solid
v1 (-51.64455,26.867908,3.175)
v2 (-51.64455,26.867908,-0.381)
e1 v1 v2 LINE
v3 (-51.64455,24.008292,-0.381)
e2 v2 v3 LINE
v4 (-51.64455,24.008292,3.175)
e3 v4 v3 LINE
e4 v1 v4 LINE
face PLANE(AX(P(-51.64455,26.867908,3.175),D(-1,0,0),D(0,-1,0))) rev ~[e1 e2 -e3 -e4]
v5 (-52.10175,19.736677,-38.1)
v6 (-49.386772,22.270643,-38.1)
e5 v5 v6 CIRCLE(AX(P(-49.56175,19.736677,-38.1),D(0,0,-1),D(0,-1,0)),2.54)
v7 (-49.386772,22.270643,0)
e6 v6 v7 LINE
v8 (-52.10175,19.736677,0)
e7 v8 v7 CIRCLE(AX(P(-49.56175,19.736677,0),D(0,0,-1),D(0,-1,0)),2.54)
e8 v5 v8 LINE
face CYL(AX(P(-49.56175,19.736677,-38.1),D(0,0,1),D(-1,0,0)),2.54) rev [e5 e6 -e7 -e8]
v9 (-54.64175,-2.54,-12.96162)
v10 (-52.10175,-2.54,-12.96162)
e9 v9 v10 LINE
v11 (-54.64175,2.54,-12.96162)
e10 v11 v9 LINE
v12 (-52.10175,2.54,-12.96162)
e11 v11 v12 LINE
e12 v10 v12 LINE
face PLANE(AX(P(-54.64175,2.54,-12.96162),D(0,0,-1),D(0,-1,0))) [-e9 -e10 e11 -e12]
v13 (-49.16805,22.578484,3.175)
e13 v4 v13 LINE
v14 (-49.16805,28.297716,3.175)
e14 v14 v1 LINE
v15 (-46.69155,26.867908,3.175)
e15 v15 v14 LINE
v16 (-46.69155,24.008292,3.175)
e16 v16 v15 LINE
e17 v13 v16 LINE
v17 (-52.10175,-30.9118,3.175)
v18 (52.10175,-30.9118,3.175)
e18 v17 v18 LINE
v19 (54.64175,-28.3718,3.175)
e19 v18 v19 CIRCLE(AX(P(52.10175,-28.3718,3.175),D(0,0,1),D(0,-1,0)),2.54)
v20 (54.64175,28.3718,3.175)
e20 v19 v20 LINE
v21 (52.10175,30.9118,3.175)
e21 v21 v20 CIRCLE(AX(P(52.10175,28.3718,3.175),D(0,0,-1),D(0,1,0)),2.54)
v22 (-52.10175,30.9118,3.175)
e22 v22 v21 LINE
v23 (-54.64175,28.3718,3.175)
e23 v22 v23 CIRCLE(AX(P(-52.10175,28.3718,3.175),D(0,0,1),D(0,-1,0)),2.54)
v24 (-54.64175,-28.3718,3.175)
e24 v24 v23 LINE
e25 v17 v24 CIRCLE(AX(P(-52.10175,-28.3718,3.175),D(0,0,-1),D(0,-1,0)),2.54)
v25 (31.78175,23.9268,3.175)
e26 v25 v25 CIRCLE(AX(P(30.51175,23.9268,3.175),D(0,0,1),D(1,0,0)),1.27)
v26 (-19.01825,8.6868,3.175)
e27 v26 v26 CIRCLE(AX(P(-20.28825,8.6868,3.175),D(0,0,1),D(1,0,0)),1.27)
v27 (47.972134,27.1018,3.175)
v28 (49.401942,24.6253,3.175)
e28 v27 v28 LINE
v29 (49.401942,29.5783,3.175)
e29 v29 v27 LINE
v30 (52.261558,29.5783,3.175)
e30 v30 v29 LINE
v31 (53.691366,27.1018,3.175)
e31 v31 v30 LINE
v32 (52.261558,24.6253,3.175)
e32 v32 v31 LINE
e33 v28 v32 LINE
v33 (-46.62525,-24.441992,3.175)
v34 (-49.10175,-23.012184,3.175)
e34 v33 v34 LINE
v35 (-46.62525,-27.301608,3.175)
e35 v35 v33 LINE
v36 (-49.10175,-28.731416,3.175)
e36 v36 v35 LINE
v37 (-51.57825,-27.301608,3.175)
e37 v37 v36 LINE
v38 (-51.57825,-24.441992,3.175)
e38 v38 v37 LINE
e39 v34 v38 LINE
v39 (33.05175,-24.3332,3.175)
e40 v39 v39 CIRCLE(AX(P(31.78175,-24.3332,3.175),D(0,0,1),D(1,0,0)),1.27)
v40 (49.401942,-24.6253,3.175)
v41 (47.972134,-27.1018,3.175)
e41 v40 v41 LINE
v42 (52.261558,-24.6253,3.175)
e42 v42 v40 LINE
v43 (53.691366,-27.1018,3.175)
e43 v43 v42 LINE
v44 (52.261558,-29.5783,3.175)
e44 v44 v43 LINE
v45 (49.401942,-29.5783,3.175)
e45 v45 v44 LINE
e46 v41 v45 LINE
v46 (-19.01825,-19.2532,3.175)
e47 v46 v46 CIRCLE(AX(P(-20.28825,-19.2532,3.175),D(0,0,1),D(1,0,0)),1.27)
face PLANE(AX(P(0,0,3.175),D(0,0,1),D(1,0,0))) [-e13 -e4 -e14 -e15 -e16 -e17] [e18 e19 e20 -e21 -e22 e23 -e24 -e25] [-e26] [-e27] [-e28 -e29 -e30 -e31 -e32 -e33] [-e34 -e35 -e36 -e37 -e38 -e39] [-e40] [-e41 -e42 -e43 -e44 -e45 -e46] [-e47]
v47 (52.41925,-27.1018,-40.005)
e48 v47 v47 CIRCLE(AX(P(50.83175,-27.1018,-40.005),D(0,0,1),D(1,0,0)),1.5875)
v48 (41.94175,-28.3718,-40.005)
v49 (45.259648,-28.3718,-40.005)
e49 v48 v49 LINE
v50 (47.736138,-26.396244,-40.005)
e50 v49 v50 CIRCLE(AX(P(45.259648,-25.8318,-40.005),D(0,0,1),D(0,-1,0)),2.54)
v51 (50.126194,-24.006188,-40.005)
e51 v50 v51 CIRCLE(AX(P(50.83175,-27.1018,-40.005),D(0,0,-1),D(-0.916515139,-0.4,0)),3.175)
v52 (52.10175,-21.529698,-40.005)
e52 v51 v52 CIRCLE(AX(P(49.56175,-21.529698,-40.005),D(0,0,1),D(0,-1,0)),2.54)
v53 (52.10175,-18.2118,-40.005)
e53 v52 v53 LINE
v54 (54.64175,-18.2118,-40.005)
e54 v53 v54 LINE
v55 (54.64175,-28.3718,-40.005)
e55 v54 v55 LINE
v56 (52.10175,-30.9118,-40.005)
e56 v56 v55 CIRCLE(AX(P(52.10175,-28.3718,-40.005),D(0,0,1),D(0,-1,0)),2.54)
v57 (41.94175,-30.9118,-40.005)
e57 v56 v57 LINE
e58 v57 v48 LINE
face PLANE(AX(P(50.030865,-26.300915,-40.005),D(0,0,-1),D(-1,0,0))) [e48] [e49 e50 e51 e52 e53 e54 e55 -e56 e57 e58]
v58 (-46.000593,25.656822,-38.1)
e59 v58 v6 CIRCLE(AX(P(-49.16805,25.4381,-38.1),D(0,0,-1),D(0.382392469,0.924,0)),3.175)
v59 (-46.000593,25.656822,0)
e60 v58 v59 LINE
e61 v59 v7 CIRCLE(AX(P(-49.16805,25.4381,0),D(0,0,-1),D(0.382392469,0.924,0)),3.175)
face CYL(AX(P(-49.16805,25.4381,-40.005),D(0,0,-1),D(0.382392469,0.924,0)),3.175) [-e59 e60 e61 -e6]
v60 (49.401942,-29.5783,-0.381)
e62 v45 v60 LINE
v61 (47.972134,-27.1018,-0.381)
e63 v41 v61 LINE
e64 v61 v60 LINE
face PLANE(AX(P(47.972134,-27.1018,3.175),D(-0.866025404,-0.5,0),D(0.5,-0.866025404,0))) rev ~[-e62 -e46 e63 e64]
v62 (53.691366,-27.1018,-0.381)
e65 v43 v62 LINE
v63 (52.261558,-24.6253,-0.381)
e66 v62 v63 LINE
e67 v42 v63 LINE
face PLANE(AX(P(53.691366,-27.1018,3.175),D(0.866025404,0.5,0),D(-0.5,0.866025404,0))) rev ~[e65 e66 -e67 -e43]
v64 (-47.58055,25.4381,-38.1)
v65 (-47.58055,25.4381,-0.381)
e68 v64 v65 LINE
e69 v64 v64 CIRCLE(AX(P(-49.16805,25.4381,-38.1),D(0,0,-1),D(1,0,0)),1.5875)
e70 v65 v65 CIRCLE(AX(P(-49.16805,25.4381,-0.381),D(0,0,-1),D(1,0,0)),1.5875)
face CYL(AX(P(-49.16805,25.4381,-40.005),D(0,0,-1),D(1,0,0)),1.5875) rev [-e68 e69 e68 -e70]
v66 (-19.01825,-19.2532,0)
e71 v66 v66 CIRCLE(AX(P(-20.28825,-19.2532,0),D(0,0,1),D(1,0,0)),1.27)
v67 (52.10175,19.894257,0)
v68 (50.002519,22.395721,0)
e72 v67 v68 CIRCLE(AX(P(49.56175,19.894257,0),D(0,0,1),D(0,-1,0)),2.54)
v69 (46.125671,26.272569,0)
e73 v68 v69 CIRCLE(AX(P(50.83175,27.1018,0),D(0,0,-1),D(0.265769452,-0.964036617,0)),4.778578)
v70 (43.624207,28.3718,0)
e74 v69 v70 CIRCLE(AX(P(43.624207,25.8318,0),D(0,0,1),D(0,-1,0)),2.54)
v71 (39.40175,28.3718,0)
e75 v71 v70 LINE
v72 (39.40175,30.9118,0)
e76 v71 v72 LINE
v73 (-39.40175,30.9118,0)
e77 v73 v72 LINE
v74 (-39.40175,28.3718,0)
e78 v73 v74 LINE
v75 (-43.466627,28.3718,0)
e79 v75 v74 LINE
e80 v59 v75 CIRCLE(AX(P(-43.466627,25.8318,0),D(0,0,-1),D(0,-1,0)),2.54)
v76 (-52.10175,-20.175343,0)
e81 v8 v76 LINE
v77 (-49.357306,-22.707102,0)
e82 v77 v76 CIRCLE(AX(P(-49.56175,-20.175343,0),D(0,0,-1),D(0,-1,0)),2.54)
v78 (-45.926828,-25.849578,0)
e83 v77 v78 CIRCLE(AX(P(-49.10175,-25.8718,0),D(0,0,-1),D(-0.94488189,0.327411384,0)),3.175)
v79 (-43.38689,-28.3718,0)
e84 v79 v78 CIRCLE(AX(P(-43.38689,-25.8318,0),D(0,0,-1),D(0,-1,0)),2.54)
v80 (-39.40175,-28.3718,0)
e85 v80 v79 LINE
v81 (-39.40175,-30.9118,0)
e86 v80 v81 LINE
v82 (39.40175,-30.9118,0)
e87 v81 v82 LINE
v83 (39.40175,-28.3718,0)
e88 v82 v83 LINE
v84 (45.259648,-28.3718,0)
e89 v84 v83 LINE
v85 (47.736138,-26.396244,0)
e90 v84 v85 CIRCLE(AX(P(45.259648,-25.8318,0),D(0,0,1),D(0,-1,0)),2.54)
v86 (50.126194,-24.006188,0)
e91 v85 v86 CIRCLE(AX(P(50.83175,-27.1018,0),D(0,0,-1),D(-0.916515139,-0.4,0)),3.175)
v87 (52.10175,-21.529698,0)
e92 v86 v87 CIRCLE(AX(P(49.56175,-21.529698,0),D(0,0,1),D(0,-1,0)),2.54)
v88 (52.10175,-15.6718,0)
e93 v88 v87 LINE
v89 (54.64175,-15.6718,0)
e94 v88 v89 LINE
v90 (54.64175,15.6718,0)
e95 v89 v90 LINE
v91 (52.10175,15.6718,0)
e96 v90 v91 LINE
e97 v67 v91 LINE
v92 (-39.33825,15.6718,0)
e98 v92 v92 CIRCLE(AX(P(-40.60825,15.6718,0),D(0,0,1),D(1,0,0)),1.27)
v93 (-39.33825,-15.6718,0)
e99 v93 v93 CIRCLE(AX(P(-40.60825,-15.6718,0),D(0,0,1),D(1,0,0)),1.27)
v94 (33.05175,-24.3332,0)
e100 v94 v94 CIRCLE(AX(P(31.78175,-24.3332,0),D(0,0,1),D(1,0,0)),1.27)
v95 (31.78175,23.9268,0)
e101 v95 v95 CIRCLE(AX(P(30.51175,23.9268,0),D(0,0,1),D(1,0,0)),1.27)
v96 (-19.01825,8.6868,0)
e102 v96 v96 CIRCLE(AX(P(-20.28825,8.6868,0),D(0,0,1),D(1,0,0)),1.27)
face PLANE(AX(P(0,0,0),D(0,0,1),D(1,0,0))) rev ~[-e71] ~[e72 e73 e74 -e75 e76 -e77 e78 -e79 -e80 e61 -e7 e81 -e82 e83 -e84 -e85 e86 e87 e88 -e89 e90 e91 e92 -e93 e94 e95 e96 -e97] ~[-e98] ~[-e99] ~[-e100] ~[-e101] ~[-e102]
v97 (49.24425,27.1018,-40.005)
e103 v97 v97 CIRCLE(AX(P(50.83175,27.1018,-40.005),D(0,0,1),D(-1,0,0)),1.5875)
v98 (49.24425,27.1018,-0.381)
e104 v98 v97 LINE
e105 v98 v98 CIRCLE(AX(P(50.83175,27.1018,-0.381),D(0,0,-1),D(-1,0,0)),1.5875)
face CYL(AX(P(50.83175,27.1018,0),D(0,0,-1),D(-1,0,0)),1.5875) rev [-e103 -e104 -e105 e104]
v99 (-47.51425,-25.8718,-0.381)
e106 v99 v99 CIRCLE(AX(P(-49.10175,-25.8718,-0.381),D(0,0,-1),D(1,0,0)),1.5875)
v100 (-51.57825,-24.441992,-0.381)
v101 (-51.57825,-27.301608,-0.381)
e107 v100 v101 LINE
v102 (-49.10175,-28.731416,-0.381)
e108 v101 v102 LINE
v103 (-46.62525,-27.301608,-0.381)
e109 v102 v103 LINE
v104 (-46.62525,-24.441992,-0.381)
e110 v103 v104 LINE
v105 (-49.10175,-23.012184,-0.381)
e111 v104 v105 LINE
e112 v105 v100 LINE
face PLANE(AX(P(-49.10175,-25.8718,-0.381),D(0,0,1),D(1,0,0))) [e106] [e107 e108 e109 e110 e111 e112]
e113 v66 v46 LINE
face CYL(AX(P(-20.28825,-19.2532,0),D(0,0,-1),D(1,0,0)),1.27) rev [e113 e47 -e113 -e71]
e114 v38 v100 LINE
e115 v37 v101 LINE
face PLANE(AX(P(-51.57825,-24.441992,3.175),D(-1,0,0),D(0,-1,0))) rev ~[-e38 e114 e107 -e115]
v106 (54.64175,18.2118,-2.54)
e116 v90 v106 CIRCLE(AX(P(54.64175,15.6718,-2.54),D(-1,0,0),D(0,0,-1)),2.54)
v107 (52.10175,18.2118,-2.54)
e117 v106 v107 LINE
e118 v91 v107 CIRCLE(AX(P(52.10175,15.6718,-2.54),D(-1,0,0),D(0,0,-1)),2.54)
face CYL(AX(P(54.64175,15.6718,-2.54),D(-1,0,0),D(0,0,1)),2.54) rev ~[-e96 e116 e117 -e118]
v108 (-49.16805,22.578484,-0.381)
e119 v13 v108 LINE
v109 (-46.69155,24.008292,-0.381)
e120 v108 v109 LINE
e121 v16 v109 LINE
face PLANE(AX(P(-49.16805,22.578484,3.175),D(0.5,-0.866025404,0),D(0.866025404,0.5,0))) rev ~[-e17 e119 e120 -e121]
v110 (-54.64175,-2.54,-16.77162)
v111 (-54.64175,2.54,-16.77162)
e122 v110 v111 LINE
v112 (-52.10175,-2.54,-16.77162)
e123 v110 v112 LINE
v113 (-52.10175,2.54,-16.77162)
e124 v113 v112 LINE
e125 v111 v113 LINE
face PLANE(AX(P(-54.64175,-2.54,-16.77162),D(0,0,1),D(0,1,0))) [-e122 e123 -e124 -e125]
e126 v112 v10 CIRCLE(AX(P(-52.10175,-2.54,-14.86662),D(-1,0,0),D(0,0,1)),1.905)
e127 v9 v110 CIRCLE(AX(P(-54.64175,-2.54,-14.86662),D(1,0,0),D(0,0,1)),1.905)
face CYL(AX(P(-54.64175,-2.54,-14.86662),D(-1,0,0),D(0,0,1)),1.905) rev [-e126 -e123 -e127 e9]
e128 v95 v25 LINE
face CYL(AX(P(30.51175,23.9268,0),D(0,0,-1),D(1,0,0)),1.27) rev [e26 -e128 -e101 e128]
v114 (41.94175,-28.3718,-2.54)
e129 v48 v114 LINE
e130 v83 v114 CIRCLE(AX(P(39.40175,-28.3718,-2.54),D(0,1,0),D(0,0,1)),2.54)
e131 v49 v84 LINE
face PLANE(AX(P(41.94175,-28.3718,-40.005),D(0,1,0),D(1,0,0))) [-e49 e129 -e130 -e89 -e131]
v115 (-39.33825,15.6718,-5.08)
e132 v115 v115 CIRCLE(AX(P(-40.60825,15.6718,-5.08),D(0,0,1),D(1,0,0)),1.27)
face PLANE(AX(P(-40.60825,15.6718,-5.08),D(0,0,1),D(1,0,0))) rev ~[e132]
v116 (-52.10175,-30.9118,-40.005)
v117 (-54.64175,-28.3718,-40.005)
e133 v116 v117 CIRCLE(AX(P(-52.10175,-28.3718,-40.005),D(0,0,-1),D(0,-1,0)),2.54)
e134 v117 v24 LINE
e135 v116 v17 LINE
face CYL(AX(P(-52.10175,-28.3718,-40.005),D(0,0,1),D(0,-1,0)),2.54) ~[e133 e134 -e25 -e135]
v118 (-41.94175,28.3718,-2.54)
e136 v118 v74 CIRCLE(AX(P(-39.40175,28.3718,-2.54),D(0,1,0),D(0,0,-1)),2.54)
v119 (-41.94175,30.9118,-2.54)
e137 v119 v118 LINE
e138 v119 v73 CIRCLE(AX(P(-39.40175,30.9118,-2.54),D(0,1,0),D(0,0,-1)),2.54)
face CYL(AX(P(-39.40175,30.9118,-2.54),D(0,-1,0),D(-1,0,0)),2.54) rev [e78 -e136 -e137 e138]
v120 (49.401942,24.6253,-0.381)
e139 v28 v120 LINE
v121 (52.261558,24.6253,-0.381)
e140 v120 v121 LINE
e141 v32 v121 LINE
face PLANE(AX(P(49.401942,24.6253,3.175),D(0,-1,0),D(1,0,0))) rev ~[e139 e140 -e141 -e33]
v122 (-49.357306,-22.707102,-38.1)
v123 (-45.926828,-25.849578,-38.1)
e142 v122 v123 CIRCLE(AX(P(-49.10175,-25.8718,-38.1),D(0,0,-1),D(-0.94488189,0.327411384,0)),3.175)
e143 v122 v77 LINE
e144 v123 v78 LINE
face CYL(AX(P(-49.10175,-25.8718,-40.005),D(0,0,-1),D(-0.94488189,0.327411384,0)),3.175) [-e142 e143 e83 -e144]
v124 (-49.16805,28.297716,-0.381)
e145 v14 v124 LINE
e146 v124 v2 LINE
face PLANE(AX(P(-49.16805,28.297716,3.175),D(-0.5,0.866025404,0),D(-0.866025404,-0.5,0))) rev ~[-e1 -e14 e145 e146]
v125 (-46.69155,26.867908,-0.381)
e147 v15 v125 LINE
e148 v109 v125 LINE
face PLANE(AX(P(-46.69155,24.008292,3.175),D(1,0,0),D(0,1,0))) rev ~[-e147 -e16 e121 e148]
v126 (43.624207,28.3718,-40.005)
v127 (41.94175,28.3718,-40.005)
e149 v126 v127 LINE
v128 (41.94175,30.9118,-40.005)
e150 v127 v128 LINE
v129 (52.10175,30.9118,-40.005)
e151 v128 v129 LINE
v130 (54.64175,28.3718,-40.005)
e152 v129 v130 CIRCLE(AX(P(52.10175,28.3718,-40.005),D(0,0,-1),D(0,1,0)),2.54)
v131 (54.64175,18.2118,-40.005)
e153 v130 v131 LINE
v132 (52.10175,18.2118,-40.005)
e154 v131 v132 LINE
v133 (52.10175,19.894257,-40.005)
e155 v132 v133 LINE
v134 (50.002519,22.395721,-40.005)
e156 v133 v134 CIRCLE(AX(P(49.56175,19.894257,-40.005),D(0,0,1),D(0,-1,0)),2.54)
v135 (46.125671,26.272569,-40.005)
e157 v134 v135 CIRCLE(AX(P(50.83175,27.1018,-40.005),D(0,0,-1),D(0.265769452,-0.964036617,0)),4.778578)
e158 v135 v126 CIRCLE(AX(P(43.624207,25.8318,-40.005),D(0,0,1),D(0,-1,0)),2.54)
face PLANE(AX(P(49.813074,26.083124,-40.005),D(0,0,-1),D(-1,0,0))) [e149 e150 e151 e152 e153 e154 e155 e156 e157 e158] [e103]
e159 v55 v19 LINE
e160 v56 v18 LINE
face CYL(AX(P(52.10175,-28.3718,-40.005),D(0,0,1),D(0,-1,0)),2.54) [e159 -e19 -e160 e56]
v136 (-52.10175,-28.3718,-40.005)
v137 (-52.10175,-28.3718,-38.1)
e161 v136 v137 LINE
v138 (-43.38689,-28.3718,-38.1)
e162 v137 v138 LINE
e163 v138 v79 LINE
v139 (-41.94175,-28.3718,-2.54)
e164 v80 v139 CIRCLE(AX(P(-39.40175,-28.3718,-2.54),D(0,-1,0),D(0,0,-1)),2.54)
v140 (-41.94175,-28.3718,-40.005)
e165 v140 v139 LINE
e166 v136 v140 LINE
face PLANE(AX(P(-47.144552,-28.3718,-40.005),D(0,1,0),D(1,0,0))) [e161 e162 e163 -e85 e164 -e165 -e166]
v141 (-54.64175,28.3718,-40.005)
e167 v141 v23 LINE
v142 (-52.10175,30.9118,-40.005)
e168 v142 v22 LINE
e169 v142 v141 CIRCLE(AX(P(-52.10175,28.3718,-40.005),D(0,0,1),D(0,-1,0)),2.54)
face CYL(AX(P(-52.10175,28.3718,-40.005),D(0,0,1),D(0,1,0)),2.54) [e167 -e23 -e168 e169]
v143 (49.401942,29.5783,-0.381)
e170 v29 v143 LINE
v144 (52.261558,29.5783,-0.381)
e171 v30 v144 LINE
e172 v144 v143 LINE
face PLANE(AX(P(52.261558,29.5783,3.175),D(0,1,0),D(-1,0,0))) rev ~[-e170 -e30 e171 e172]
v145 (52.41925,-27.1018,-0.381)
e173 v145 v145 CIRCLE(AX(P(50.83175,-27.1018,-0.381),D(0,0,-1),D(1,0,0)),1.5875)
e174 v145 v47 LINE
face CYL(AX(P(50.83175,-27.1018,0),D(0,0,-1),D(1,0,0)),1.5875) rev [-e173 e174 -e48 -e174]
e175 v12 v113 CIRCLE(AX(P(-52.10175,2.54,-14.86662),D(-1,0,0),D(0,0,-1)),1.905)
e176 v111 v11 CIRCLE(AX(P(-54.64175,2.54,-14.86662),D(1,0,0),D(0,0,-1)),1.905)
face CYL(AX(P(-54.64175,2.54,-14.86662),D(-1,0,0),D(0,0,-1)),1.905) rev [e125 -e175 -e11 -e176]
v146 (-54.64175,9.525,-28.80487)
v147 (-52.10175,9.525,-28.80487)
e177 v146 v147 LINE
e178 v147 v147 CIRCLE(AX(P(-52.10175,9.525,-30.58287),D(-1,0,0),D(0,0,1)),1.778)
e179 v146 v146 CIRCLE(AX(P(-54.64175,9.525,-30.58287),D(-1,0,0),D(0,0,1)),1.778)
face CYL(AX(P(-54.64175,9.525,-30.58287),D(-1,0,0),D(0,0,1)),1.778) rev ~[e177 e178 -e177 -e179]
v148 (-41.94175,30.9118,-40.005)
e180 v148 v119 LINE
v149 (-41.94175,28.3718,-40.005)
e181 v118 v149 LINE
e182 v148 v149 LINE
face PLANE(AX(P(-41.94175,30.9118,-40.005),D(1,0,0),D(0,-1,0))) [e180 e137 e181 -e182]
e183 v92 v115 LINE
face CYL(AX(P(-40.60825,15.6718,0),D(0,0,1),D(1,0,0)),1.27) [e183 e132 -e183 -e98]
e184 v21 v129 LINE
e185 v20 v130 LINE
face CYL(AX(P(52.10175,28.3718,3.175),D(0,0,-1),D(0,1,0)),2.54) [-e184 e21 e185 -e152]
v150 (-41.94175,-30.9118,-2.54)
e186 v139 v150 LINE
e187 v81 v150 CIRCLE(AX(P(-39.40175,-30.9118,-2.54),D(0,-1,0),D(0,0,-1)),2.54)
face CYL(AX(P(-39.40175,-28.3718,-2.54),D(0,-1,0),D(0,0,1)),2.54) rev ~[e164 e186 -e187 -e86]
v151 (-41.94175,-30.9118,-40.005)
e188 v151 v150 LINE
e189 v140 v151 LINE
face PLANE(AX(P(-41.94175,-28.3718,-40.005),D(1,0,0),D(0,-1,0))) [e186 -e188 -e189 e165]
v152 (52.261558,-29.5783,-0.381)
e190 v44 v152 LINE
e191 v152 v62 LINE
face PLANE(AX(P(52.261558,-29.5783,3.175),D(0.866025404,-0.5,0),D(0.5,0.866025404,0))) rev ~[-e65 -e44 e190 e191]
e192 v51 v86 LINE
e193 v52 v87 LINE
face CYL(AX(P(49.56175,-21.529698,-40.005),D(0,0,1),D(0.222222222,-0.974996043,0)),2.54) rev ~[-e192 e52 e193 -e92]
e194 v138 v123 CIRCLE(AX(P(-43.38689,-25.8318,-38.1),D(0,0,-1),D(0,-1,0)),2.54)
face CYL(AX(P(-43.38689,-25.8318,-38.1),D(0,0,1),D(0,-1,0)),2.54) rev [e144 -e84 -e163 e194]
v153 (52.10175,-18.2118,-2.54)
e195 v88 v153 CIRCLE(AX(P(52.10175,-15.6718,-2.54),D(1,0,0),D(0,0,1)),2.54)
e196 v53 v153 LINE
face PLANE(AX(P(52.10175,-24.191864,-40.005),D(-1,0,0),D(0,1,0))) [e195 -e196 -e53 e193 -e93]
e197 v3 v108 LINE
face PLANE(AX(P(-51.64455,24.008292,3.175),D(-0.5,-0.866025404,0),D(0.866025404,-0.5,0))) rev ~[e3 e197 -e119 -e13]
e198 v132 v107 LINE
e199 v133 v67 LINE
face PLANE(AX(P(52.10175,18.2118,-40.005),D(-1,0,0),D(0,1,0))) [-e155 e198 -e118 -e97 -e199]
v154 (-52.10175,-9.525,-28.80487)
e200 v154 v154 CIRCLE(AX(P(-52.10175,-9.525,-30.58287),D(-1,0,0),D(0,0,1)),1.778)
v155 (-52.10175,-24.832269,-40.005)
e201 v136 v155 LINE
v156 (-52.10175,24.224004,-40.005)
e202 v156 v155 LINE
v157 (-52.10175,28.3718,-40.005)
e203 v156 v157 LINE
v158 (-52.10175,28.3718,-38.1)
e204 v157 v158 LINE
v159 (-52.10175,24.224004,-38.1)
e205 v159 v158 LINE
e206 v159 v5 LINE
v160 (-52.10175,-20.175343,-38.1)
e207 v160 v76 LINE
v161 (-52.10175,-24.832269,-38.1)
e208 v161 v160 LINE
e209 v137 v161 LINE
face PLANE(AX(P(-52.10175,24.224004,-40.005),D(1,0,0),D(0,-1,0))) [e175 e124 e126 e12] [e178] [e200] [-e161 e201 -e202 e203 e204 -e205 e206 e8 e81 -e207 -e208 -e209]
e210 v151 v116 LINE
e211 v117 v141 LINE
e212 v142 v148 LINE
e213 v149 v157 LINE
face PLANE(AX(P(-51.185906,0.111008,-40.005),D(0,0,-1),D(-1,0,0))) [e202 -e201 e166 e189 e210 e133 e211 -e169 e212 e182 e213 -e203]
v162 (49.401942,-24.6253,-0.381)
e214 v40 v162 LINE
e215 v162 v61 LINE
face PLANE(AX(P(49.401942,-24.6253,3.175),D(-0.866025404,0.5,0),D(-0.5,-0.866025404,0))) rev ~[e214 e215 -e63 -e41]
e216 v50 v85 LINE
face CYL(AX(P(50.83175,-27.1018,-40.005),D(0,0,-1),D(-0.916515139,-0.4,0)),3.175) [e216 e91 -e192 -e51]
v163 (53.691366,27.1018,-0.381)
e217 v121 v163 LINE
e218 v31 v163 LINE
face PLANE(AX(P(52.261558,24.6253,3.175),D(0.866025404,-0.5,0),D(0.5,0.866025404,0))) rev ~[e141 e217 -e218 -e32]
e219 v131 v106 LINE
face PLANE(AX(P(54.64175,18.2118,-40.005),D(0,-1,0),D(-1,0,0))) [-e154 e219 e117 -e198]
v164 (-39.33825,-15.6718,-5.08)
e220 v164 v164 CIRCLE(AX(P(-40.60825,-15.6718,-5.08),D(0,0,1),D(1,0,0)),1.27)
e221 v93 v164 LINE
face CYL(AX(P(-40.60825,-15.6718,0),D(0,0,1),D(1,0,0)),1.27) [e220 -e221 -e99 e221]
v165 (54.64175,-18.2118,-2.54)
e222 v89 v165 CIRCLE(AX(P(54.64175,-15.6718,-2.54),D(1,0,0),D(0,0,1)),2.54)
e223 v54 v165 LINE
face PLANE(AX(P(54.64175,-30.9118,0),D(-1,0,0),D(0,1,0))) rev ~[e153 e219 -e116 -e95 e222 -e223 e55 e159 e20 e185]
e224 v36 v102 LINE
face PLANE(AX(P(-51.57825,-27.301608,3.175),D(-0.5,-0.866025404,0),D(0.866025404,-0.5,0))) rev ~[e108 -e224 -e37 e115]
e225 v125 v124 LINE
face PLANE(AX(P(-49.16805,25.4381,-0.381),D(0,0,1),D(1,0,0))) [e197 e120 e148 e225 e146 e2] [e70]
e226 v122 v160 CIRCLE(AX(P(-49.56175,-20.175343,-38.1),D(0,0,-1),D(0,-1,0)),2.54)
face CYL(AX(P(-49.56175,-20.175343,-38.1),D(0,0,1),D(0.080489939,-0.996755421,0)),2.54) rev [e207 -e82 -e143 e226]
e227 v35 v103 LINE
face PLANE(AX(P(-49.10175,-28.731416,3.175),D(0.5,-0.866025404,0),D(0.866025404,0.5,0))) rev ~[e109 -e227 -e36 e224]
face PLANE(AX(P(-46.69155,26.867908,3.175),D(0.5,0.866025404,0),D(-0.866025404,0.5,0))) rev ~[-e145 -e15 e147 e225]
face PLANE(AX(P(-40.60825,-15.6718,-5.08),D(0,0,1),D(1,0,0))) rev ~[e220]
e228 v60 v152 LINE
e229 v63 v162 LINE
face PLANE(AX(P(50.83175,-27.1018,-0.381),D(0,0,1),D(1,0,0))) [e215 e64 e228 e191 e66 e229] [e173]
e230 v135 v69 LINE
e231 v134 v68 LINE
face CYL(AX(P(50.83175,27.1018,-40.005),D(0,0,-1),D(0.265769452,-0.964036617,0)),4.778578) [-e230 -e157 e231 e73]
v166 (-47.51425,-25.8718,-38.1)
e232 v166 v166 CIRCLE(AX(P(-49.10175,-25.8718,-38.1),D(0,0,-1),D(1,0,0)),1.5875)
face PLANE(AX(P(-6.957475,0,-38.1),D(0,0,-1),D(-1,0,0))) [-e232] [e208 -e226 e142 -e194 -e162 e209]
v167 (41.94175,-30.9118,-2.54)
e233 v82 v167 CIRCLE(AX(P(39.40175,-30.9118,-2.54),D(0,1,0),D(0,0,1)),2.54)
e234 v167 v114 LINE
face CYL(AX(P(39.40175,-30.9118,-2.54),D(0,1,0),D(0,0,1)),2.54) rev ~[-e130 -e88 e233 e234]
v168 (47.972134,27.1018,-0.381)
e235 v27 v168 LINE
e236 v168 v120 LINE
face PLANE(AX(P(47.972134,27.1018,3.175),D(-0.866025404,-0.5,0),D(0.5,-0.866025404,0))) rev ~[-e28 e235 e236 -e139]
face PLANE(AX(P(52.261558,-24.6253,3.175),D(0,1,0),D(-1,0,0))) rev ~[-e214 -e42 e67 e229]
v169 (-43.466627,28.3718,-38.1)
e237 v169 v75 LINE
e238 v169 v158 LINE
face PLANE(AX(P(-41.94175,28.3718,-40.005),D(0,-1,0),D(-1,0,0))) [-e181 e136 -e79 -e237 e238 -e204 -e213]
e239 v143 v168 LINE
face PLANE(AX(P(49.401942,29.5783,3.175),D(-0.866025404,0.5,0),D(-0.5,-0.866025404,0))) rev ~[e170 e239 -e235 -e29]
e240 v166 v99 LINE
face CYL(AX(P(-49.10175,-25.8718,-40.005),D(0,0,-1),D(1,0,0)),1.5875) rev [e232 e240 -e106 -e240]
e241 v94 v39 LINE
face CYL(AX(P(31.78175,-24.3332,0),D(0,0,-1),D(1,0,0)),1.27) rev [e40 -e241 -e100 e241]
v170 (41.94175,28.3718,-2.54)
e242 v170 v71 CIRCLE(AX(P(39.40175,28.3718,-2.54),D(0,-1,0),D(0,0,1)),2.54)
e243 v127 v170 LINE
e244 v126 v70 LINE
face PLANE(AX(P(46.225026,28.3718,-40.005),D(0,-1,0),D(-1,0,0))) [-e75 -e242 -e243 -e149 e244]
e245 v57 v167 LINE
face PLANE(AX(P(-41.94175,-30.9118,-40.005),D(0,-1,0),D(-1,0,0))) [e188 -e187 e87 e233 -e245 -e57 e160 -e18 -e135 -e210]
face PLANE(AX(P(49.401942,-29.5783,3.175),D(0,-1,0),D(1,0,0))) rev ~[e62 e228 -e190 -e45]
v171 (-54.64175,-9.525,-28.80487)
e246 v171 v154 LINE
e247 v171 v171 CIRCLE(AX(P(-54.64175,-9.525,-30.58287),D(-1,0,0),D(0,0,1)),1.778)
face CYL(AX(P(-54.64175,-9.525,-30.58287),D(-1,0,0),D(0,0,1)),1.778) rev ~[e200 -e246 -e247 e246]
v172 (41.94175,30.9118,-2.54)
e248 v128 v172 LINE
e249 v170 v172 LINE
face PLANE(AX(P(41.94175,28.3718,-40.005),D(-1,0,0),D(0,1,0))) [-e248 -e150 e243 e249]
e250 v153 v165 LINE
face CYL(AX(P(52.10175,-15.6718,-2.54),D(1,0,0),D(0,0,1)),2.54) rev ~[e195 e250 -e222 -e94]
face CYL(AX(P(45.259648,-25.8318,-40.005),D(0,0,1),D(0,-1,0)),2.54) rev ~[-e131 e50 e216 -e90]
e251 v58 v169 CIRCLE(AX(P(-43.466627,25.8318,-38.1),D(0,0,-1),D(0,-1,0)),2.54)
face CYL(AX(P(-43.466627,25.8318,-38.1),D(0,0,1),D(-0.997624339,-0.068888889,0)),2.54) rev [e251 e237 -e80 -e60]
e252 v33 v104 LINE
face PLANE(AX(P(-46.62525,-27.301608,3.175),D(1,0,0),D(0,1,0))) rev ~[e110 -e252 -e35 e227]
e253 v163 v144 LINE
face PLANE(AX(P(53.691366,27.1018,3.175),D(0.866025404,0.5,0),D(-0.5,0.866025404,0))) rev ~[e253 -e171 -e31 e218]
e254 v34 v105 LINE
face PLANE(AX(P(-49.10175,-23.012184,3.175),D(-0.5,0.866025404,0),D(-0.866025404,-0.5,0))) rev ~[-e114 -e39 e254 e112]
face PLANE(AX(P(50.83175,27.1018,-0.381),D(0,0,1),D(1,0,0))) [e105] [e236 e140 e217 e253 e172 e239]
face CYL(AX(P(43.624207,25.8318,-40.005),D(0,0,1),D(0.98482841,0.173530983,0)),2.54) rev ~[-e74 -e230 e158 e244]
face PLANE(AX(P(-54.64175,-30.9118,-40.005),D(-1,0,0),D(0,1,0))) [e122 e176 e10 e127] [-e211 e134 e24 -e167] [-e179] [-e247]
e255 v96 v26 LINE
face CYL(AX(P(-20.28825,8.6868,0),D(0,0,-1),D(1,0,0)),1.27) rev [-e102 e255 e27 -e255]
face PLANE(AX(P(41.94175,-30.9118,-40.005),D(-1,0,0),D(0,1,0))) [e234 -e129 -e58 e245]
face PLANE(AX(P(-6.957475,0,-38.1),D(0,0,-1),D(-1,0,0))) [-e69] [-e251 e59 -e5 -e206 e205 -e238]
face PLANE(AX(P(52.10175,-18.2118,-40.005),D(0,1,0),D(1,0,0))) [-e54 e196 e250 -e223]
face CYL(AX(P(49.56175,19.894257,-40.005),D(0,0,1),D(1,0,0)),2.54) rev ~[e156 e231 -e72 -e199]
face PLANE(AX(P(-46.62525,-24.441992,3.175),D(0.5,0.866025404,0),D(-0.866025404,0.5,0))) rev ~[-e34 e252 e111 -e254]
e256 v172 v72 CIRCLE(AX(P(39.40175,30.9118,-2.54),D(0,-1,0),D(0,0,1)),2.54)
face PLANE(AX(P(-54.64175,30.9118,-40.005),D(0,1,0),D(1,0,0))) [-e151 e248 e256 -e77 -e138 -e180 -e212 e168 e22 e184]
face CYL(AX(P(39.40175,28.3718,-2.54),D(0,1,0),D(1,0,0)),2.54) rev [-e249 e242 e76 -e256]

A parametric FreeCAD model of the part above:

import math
import FreeCAD as App
import Part
import Sketcher
from FreeCAD import Vector
Q = App.Units.Quantity


def edges_at(feature, points):
    """Names of the edges that pass closest to the given points."""
    edges = feature.Shape.Edges
    near = lambda p: min(range(len(edges)), key=lambda i: edges[i].distToShape(Part.Vertex(*p))[0])
    return sorted({f"Edge{near(p) + 1}" for p in points})

doc = App.newDocument("Part")
body = doc.addObject("PartDesign::Body", "Body")

# Sketch on XY plane
sketch1 = body.newObject("Sketcher::SketchObject", "Sketch")
sketch1.AttachmentSupport = (doc.getObject("XY_Plane"), [""])
sketch1.MapMode = "FlatFace"
sketch1.addGeometry([
    Part.LineSegment(Vector(-54.6, 30.9, 0), Vector(-54.6, -30.9, 0)),  # 0
    Part.LineSegment(Vector(-54.6, -30.9, 0), Vector(54.6, -30.9, 0)),  # 1
    Part.LineSegment(Vector(54.6, -30.9, 0), Vector(54.6, 30.9, 0)),  # 2
    Part.LineSegment(Vector(54.6, 30.9, 0), Vector(-54.6, 30.9, 0)),  # 3
    Part.Circle(Vector(-49.1, -25.9, 0), Vector(0, 0, 1), 1.6),  # 4
    Part.Circle(Vector(-20.3, -19.3, 0), Vector(0, 0, 1), 1.3),  # 5
    Part.Circle(Vector(31.8, -24.3, 0), Vector(0, 0, 1), 1.3),  # 6
    Part.Circle(Vector(50.8, -27.1, 0), Vector(0, 0, 1), 1.6),  # 7
    Part.Circle(Vector(-20.3, 8.7, 0), Vector(0, 0, 1), 1.3),  # 8
    Part.Circle(Vector(-49.2, 25.4, 0), Vector(0, 0, 1), 1.6),  # 9
    Part.Circle(Vector(30.5, 23.9, 0), Vector(0, 0, 1), 1.3),  # 10
    Part.Circle(Vector(50.8, 27.1, 0), Vector(0, 0, 1), 1.6),  # 11
], False)
sketch1.addConstraint([
    Sketcher.Constraint("Coincident", 0, 2, 1, 1),
    Sketcher.Constraint("Coincident", 1, 2, 2, 1),
    Sketcher.Constraint("Coincident", 2, 2, 3, 1),
    Sketcher.Constraint("Coincident", 3, 2, 0, 1),
    Sketcher.Constraint("Vertical", 0),
    Sketcher.Constraint("Horizontal", 1),
    Sketcher.Constraint("Vertical", 2),
    Sketcher.Constraint("Horizontal", 3),
    Sketcher.Constraint("Equal", 5, 6),
    Sketcher.Constraint("Equal", 4, 7),
    Sketcher.Constraint("Equal", 6, 8),
    Sketcher.Constraint("Equal", 7, 9),
    Sketcher.Constraint("Equal", 8, 10),
    Sketcher.Constraint("Equal", 9, 11),
    Sketcher.Constraint("Symmetric", 0, 2, 2, 2, -1, 1),
    Sketcher.Constraint("Symmetric", 7, 3, 11, 3, -1),
    Sketcher.Constraint("Vertical", 5, 3, 8, 3),
    Sketcher.Constraint("Diameter", 5, Q("0.1 in")),
    Sketcher.Constraint("Diameter", 4, Q("0.125 in")),
    Sketcher.Constraint("DistanceX", 8, 3, 10, 3, Q("2 in")),
    Sketcher.Constraint("DistanceY", 6, 3, 5, 3, Q("0.2 in")),
    Sketcher.Constraint("DistanceX", 5, 3, 7, 3, Q("2.8 in")),
    Sketcher.Constraint("DistanceY", 5, 3, 8, 3, Q("1.1 in")),
    Sketcher.Constraint("DistanceY", 6, 3, 10, 3, Q("1.9 in")),
    Sketcher.Constraint("DistanceX", 6, 3, 1, 2, Q("0.9 in")),
    Sketcher.Constraint("DistanceY", 0, 2, 0, 1, Q("2.434 in")),
    Sketcher.Constraint("DistanceX", 5, 3, 6, 3, Q("2.05 in")),
    Sketcher.Constraint("DistanceY", 1, 2, 7, 3, Q("0.15 in")),
    Sketcher.Constraint("DistanceX", 1, 1, 1, 2, Q("4.3025 in")),
    Sketcher.Constraint("DistanceY", 5, 3, -1, 1, Q("0.758 in")),
    Sketcher.Constraint("DistanceX", 9, 3, 8, 3, Q("1.137 in")),
    Sketcher.Constraint("DistanceY", -1, 1, 9, 3, Q("1.0015 in")),
    Sketcher.Constraint("DistanceY", 4, 3, -1, 1, 25.8718),
    Sketcher.Constraint("DistanceX", 4, 3, 5, 3, 28.8135),
])
pad1 = body.newObject("PartDesign::Pad", "Pad")
pad1.Profile = sketch1
pad1.Length = Q("0.125 in")

# Sketch on XY plane
sketch2 = body.newObject("Sketcher::SketchObject", "Sketch001")
sketch2.AttachmentSupport = (doc.getObject("XY_Plane"), [""])
sketch2.MapMode = "FlatFace"
sketch2.AttachmentOffset = App.Placement(Vector(0, 0, -1.575 * 25.4), App.Rotation())
sketch2.addGeometry([
    Part.LineSegment(Vector(-41.9, 30.9, 0), Vector(-54.6, 30.9, 0)),  # 0
    Part.LineSegment(Vector(-54.6, 30.9, 0), Vector(-54.6, -30.9, 0)),  # 1
    Part.LineSegment(Vector(-54.6, -30.9, 0), Vector(-41.9, -30.9, 0)),  # 2
    Part.LineSegment(Vector(-41.9, -30.9, 0), Vector(-41.9, -28.4, 0)),  # 3
    Part.LineSegment(Vector(-41.9, -28.4, 0), Vector(-47.1, -28.4, 0)),  # 4
    Part.ArcOfCircle(Part.Circle(Vector(-49.1, -25.9, 0), Vector(0, 0, 1), 3.2), math.radians(-52), math.radians(161)),  # 5
    Part.LineSegment(Vector(-52.1, -24.8, 0), Vector(-52.1, 24.2, 0)),  # 6
    Part.ArcOfCircle(Part.Circle(Vector(-49.2, 25.4, 0), Vector(0, 0, 1), 3.2), math.radians(-158), math.radians(68)),  # 7
    Part.LineSegment(Vector(-48, 28.4, 0), Vector(-41.9, 28.4, 0)),  # 8
    Part.LineSegment(Vector(-41.9, 28.4, 0), Vector(-41.9, 30.9, 0)),  # 9
    Part.Circle(Vector(-49.1, -25.9, 0), Vector(0, 0, 1), 1.6),  # 10
    Part.Circle(Vector(-49.2, 25.4, 0), Vector(0, 0, 1), 1.6),  # 11
    Part.LineSegment(Vector(54.6, 18.2, 0), Vector(54.6, 30.9, 0)),  # 12
    Part.LineSegment(Vector(54.6, 30.9, 0), Vector(41.9, 30.9, 0)),  # 13
    Part.LineSegment(Vector(41.9, 30.9, 0), Vector(41.9, 28.4, 0)),  # 14
    Part.LineSegment(Vector(41.9, 28.4, 0), Vector(46.2, 28.4, 0)),  # 15
    Part.ArcOfCircle(Part.Circle(Vector(50.8, 27.1, 0), Vector(0, 0, 1), 4.8), math.radians(165), math.radians(285)),  # 16
    Part.LineSegment(Vector(52.1, 22.5, 0), Vector(52.1, 18.2, 0)),  # 17
    Part.LineSegment(Vector(52.1, 18.2, 0), Vector(54.6, 18.2, 0)),  # 18
    Part.Circle(Vector(50.8, 27.1, 0), Vector(0, 0, 1), 1.6),  # 19
    Part.LineSegment(Vector(52.1, -18.2, 0), Vector(52.1, -24.2, 0)),  # 20
    Part.ArcOfCircle(Part.Circle(Vector(50.8, -27.1, 0), Vector(0, 0, 1), 3.2), math.radians(66), math.radians(204)),  # 21
    Part.LineSegment(Vector(47.9, -28.4, 0), Vector(41.9, -28.4, 0)),  # 22
    Part.LineSegment(Vector(41.9, -28.4, 0), Vector(41.9, -30.9, 0)),  # 23
    Part.LineSegment(Vector(41.9, -30.9, 0), Vector(54.6, -30.9, 0)),  # 24
    Part.LineSegment(Vector(54.6, -30.9, 0), Vector(54.6, -18.2, 0)),  # 25
    Part.LineSegment(Vector(54.6, -18.2, 0), Vector(52.1, -18.2, 0)),  # 26
    Part.Circle(Vector(50.8, -27.1, 0), Vector(0, 0, 1), 1.6),  # 27
], False)
sketch2.addConstraint([
    Sketcher.Constraint("Coincident", 0, 2, 1, 1),
    Sketcher.Constraint("Coincident", 1, 2, 2, 1),
    Sketcher.Constraint("Coincident", 2, 2, 3, 1),
    Sketcher.Constraint("Coincident", 3, 2, 4, 1),
    Sketcher.Constraint("Coincident", 4, 2, 5, 1),
    Sketcher.Constraint("Coincident", 5, 2, 6, 1),
    Sketcher.Constraint("Coincident", 6, 2, 7, 1),
    Sketcher.Constraint("Coincident", 7, 2, 8, 1),
    Sketcher.Constraint("Coincident", 8, 2, 9, 1),
    Sketcher.Constraint("Coincident", 9, 2, 0, 1),
    Sketcher.Constraint("Coincident", 12, 2, 13, 1),
    Sketcher.Constraint("Coincident", 13, 2, 14, 1),
    Sketcher.Constraint("Coincident", 14, 2, 15, 1),
    Sketcher.Constraint("Coincident", 15, 2, 16, 1),
    Sketcher.Constraint("Coincident", 16, 2, 17, 1),
    Sketcher.Constraint("Coincident", 17, 2, 18, 1),
    Sketcher.Constraint("Coincident", 18, 2, 12, 1),
    Sketcher.Constraint("Coincident", 20, 2, 21, 1),
    Sketcher.Constraint("Coincident", 21, 2, 22, 1),
    Sketcher.Constraint("Coincident", 22, 2, 23, 1),
    Sketcher.Constraint("Coincident", 23, 2, 24, 1),
    Sketcher.Constraint("Coincident", 24, 2, 25, 1),
    Sketcher.Constraint("Coincident", 25, 2, 26, 1),
    Sketcher.Constraint("Coincident", 26, 2, 20, 1),
    Sketcher.Constraint("Horizontal", 0),
    Sketcher.Constraint("Vertical", 1),
    Sketcher.Constraint("Horizontal", 2),
    Sketcher.Constraint("Vertical", 3),
    Sketcher.Constraint("Horizontal", 4),
    Sketcher.Constraint("Vertical", 6),
    Sketcher.Constraint("Horizontal", 8),
    Sketcher.Constraint("Vertical", 9),
    Sketcher.Constraint("Vertical", 12),
    Sketcher.Constraint("Horizontal", 13),
    Sketcher.Constraint("Vertical", 14),
    Sketcher.Constraint("Horizontal", 15),
    Sketcher.Constraint("Vertical", 17),
    Sketcher.Constraint("Horizontal", 18),
    Sketcher.Constraint("Vertical", 20),
    Sketcher.Constraint("Horizontal", 22),
    Sketcher.Constraint("Vertical", 23),
    Sketcher.Constraint("Horizontal", 24),
    Sketcher.Constraint("Vertical", 25),
    Sketcher.Constraint("Horizontal", 26),
    Sketcher.Constraint("Coincident", 10, 3, 5, 3),
    Sketcher.Constraint("Coincident", 11, 3, 7, 3),
    Sketcher.Constraint("Coincident", 19, 3, 16, 3),
    Sketcher.Constraint("Coincident", 27, 3, 21, 3),
    Sketcher.Constraint("Equal", 5, 7),
    Sketcher.Constraint("Equal", 10, 11),
    Sketcher.Constraint("Equal", 11, 19),
    Sketcher.Constraint("Equal", 7, 21),
    Sketcher.Constraint("Equal", 19, 27),
    Sketcher.Constraint("Symmetric", 1, 2, 12, 2, -1, 1),
    Sketcher.Constraint("Symmetric", 3, 2, 14, 2, -1, 1),
    Sketcher.Constraint("Symmetric", 8, 2, 22, 2, -1, 1),
    Sketcher.Constraint("Symmetric", 0, 2, 24, 2, -1, 1),
    Sketcher.Constraint("Symmetric", 9, 2, 13, 2, -2),
    Sketcher.Constraint("Symmetric", 16, 3, 21, 3, -1),
    Sketcher.Constraint("Symmetric", 17, 2, 26, 2, -1),
    Sketcher.Constraint("Horizontal", 8, 2, 14, 2),
    Sketcher.Constraint("Equal", 26, 3),
    Sketcher.Constraint("Equal", 24, 12),
    Sketcher.Constraint("Equal", 15, 17),
    Sketcher.Constraint("Diameter", 10, Q("0.125 in")),
    Sketcher.Constraint("DistanceX", 0, 2, 0, 1, Q("0.5 in")),
    Sketcher.Constraint("DistanceX", 18, 1, 18, 2, Q("0.1 in")),
    Sketcher.Constraint("Radius", 5, Q("0.125 in")),
    Sketcher.Constraint("DistanceX", 1, 2, 5, 2, Q("0.1 in")),
    Sketcher.Constraint("DistanceY", 1, 2, 1, 1, Q("2.434 in")),
    Sketcher.Constraint("DistanceY", 16, 3, 0, 2, Q("0.15 in")),
    Sketcher.Constraint("DistanceX", 7, 3, 16, 3, Q("3.937 in")),
    Sketcher.Constraint("DistanceX", 4, 2, 4, 1, 5.202802),
    Sketcher.Constraint("DistanceY", -1, 1, 7, 3, Q("1.0015 in")),
    Sketcher.Constraint("Radius", 16, 4.778578),
    Sketcher.Constraint("DistanceX", 0, 2, 7, 3, Q("0.2155 in")),
    Sketcher.Constraint("DistanceY", 5, 3, -1, 1, 25.8718),
])
pad2 = body.newObject("PartDesign::Pad", "Pad001")
pad2.Profile = sketch2
pad2.Length = Q("1.575 in")

# Sketch on XY plane
sketch3 = body.newObject("Sketcher::SketchObject", "Sketch002")
sketch3.AttachmentSupport = (doc.getObject("XY_Plane"), [""])
sketch3.MapMode = "FlatFace"
sketch3.AttachmentOffset = App.Placement(Vector(0, 0, -1.575 * 25.4), App.Rotation())
sketch3.addGeometry([
    Part.LineSegment(Vector(38, 28, 0), Vector(38, -28, 0)),
    Part.LineSegment(Vector(38, -28, 0), Vector(-52, -28, 0)),
    Part.LineSegment(Vector(-52, -28, 0), Vector(-52, 28, 0)),
    Part.LineSegment(Vector(-52, 28, 0), Vector(38, 28, 0)),
], False)
sketch3.addConstraint([
    Sketcher.Constraint("Coincident", 0, 2, 1, 1),
    Sketcher.Constraint("Coincident", 1, 2, 2, 1),
    Sketcher.Constraint("Coincident", 2, 2, 3, 1),
    Sketcher.Constraint("Coincident", 3, 2, 0, 1),
    Sketcher.Constraint("Vertical", 0),
    Sketcher.Constraint("Horizontal", 1),
    Sketcher.Constraint("Vertical", 2),
    Sketcher.Constraint("Horizontal", 3),
    Sketcher.Constraint("DistanceY", 0, 2, 0, 1, Q("2.234 in")),
    Sketcher.Constraint("DistanceY", 0, 2, -1, 1, Q("1.117 in")),
    Sketcher.Constraint("DistanceX", 1, 2, 1, 1, 90.28855),
    Sketcher.Constraint("DistanceX", -1, 1, 0, 2, 38.1868),
])
pocket1 = body.newObject("PartDesign::Pocket", "Pocket")
pocket1.Profile = sketch3
pocket1.Length = Q("0.075 in")
pocket1.Reversed = True
doc.recompute()

fillet = body.newObject("PartDesign::Fillet", "Fillet")
fillet.Base = (pocket1, edges_at(pocket1, [
    (52.102, 22.495, -20.003),
    (46.225, 28.372, -20.003),
    (-47.145, -28.372, -19.05),
    (-52.102, -24.832, -19.05),
    (-52.102, 24.224, -19.05),
    (-47.954, 28.372, -19.05),
    (-54.642, 30.912, -18.415),
    (54.642, 30.912, -18.415),
    (54.642, -30.912, -18.415),
    (-54.642, -30.912, -18.415),
    (47.922, -28.372, -20.003),
    (52.102, -24.192, -20.003),
]))
fillet.Radius = Q("0.1 in")

# Sketch on XY plane
sketch4 = body.newObject("Sketcher::SketchObject", "Sketch003")
sketch4.AttachmentSupport = (doc.getObject("XY_Plane"), [""])
sketch4.MapMode = "FlatFace"
sketch4.addGeometry([
    Part.Circle(Vector(-40.6, 15.7, 0), Vector(0, 0, 1), 1.3),
    Part.Circle(Vector(-40.6, -15.7, 0), Vector(0, 0, 1), 1.3),
], False)
sketch4.addConstraint([
    Sketcher.Constraint("Equal", 0, 1),
    Sketcher.Constraint("Symmetric", 0, 3, 1, 3, -1),
    Sketcher.Constraint("Diameter", 0, Q("0.1 in")),
    Sketcher.Constraint("DistanceY", -1, 1, 0, 3, Q("0.617 in")),
    Sketcher.Constraint("DistanceX", 0, 3, -1, 1, 40.60825),
])
pad3 = body.newObject("PartDesign::Pad", "Pad002")
pad3.Profile = sketch4
pad3.Length = Q("0.2 in")
pad3.Reversed = True
doc.recompute()

fillet2 = body.newObject("PartDesign::Fillet", "Fillet001")
fillet2.Base = (pad3, edges_at(pad3, [
    (41.942, 29.642, 0),
    (53.372, 18.212, 0),
    (-41.942, -29.642, 0),
    (-41.942, 29.642, 0),
    (53.372, -18.212, 0),
    (41.942, -29.642, 0),
]))
fillet2.Radius = Q("0.1 in")

# Sketch on YZ plane
sketch5 = body.newObject("Sketcher::SketchObject", "Sketch004")
sketch5.AttachmentSupport = (doc.getObject("YZ_Plane"), [""])
sketch5.MapMode = "FlatFace"
sketch5.AttachmentOffset = App.Placement(Vector(0, 0, -54.64175), App.Rotation())
sketch5.addGeometry([
    Part.Circle(Vector(9.5, -30.6, 0), Vector(0, 0, 1), 1.8),  # 0
    Part.Circle(Vector(-9.5, -30.6, 0), Vector(0, 0, 1), 1.8),  # 1
    Part.LineSegment(Vector(-2.5, -13, 0), Vector(2.5, -13, 0)),  # 2
    Part.ArcOfCircle(Part.Circle(Vector(2.5, -14.9, 0), Vector(0, 0, 1), 1.9), math.radians(-90), math.radians(90)),  # 3
    Part.LineSegment(Vector(2.5, -16.8, 0), Vector(-2.5, -16.8, 0)),  # 4
    Part.ArcOfCircle(Part.Circle(Vector(-2.5, -14.9, 0), Vector(0, 0, 1), 1.9), math.radians(90), math.radians(270)),  # 5
], False)
sketch5.addConstraint([
    Sketcher.Constraint("Tangent", 2, 2, 3, 2),
    Sketcher.Constraint("Tangent", 3, 1, 4, 1),
    Sketcher.Constraint("Tangent", 4, 2, 5, 2),
    Sketcher.Constraint("Tangent", 5, 1, 2, 1),
    Sketcher.Constraint("Horizontal", 2),
    Sketcher.Constraint("Horizontal", 4),
    Sketcher.Constraint("Equal", 0, 1),
    Sketcher.Constraint("Symmetric", 0, 3, 1, 3, -2),
    Sketcher.Constraint("Diameter", 0, Q("0.14 in")),
    Sketcher.Constraint("DistanceX", 2, 1, 2, 2, Q("0.2 in")),
    Sketcher.Constraint("Radius", 3, Q("0.075 in")),
    Sketcher.Constraint("DistanceX", -1, 1, 3, 3, Q("0.1 in")),
    Sketcher.Constraint("DistanceX", 1, 3, 0, 3, Q("0.75 in")),
    Sketcher.Constraint("DistanceY", 3, 3, -1, 1, Q("0.5853 in")),
    Sketcher.Constraint("DistanceY", 0, 3, -1, 1, 30.58287),
])
pocket2 = body.newObject("PartDesign::Pocket", "Pocket001")
pocket2.Profile = sketch5
pocket2.Length = Q("0.15 in")
pocket2.Reversed = True

# Sketch on XY plane
sketch6 = body.newObject("Sketcher::SketchObject", "Sketch005")
sketch6.AttachmentSupport = (doc.getObject("XY_Plane"), [""])
sketch6.MapMode = "FlatFace"
sketch6.AttachmentOffset = App.Placement(Vector(0, 0, 0.125 * 25.4), App.Rotation())
sketch6.addGeometry([
    Part.LineSegment(Vector(-49.2, 28.3, 0), Vector(-51.6, 26.9, 0)),  # 0
    Part.LineSegment(Vector(-51.6, 26.9, 0), Vector(-51.6, 24, 0)),  # 1
    Part.LineSegment(Vector(-51.6, 24, 0), Vector(-49.2, 22.6, 0)),  # 2
    Part.LineSegment(Vector(-49.2, 22.6, 0), Vector(-46.7, 24, 0)),  # 3
    Part.LineSegment(Vector(-46.7, 24, 0), Vector(-46.7, 26.9, 0)),  # 4
    Part.LineSegment(Vector(-46.7, 26.9, 0), Vector(-49.2, 28.3, 0)),  # 5
    Part.LineSegment(Vector(-46.6, -24.4, 0), Vector(-49.1, -23, 0)),  # 6
    Part.LineSegment(Vector(-49.1, -23, 0), Vector(-51.6, -24.4, 0)),  # 7
    Part.LineSegment(Vector(-51.6, -24.4, 0), Vector(-51.6, -27.3, 0)),  # 8
    Part.LineSegment(Vector(-51.6, -27.3, 0), Vector(-49.1, -28.7, 0)),  # 9
    Part.LineSegment(Vector(-49.1, -28.7, 0), Vector(-46.6, -27.3, 0)),  # 10
    Part.LineSegment(Vector(-46.6, -27.3, 0), Vector(-46.6, -24.4, 0)),  # 11
    Part.LineSegment(Vector(48, 27.1, 0), Vector(49.4, 24.6, 0)),  # 12
    Part.LineSegment(Vector(49.4, 24.6, 0), Vector(52.3, 24.6, 0)),  # 13
    Part.LineSegment(Vector(52.3, 24.6, 0), Vector(53.7, 27.1, 0)),  # 14
    Part.LineSegment(Vector(53.7, 27.1, 0), Vector(52.3, 29.6, 0)),  # 15
    Part.LineSegment(Vector(52.3, 29.6, 0), Vector(49.4, 29.6, 0)),  # 16
    Part.LineSegment(Vector(49.4, 29.6, 0), Vector(48, 27.1, 0)),  # 17
    Part.LineSegment(Vector(49.4, -24.6, 0), Vector(48, -27.1, 0)),  # 18
    Part.LineSegment(Vector(48, -27.1, 0), Vector(49.4, -29.6, 0)),  # 19
    Part.LineSegment(Vector(49.4, -29.6, 0), Vector(52.3, -29.6, 0)),  # 20
    Part.LineSegment(Vector(52.3, -29.6, 0), Vector(53.7, -27.1, 0)),  # 21
    Part.LineSegment(Vector(53.7, -27.1, 0), Vector(52.3, -24.6, 0)),  # 22
    Part.LineSegment(Vector(52.3, -24.6, 0), Vector(49.4, -24.6, 0)),  # 23
], False)
sketch6.addConstraint([
    Sketcher.Constraint("Coincident", 0, 2, 1, 1),
    Sketcher.Constraint("Coincident", 1, 2, 2, 1),
    Sketcher.Constraint("Coincident", 2, 2, 3, 1),
    Sketcher.Constraint("Coincident", 3, 2, 4, 1),
    Sketcher.Constraint("Coincident", 4, 2, 5, 1),
    Sketcher.Constraint("Coincident", 5, 2, 0, 1),
    Sketcher.Constraint("Coincident", 6, 2, 7, 1),
    Sketcher.Constraint("Coincident", 7, 2, 8, 1),
    Sketcher.Constraint("Coincident", 8, 2, 9, 1),
    Sketcher.Constraint("Coincident", 9, 2, 10, 1),
    Sketcher.Constraint("Coincident", 10, 2, 11, 1),
    Sketcher.Constraint("Coincident", 11, 2, 6, 1),
    Sketcher.Constraint("Coincident", 12, 2, 13, 1),
    Sketcher.Constraint("Coincident", 13, 2, 14, 1),
    Sketcher.Constraint("Coincident", 14, 2, 15, 1),
    Sketcher.Constraint("Coincident", 15, 2, 16, 1),
    Sketcher.Constraint("Coincident", 16, 2, 17, 1),
    Sketcher.Constraint("Coincident", 17, 2, 12, 1),
    Sketcher.Constraint("Coincident", 18, 2, 19, 1),
    Sketcher.Constraint("Coincident", 19, 2, 20, 1),
    Sketcher.Constraint("Coincident", 20, 2, 21, 1),
    Sketcher.Constraint("Coincident", 21, 2, 22, 1),
    Sketcher.Constraint("Coincident", 22, 2, 23, 1),
    Sketcher.Constraint("Coincident", 23, 2, 18, 1),
    Sketcher.Constraint("Vertical", 1),
    Sketcher.Constraint("Vertical", 4),
    Sketcher.Constraint("Vertical", 8),
    Sketcher.Constraint("Vertical", 11),
    Sketcher.Constraint("Horizontal", 13),
    Sketcher.Constraint("Horizontal", 16),
    Sketcher.Constraint("Horizontal", 20),
    Sketcher.Constraint("Horizontal", 23),
    Sketcher.Constraint("Symmetric", 17, 2, 18, 2, -1),
    Sketcher.Constraint("Symmetric", 16, 2, 19, 2, -1),
    Sketcher.Constraint("Symmetric", 14, 2, 21, 2, -1),
    Sketcher.Constraint("Symmetric", 13, 2, 22, 2, -1),
    Sketcher.Constraint("Parallel", 0, 3),
    Sketcher.Constraint("Parallel", 2, 5),
    Sketcher.Constraint("Parallel", 5, 6),
    Sketcher.Constraint("Parallel", 3, 7),
    Sketcher.Constraint("Parallel", 6, 9),
    Sketcher.Constraint("Parallel", 7, 10),
    Sketcher.Constraint("Perpendicular", 10, 12),
    Sketcher.Constraint("Perpendicular", 9, 14),
    Sketcher.Constraint("Parallel", 12, 15),
    Sketcher.Constraint("Parallel", 14, 17),
    Sketcher.Constraint("Parallel", 17, 18),
    Sketcher.Constraint("Parallel", 15, 19),
    Sketcher.Constraint("Parallel", 18, 21),
    Sketcher.Constraint("Horizontal", 1, 2, 3, 2),
    Sketcher.Constraint("Horizontal", 0, 2, 4, 2),
    Sketcher.Constraint("Horizontal", 8, 2, 10, 2),
    Sketcher.Constraint("Horizontal", 7, 2, 11, 2),
    Sketcher.Constraint("Horizontal", 14, 2, 17, 2),
    Sketcher.Constraint("Vertical", 13, 2, 15, 2),
    Sketcher.Constraint("Equal", 23, 1),
    Sketcher.Constraint("Equal", 4, 8),
    Sketcher.Constraint("Equal", 5, 6),
    Sketcher.Constraint("Equal", 10, 12),
    Sketcher.Constraint("Angle", 0, Q("-150 deg")),
    Sketcher.Constraint("DistanceY", -1, 1, 14, 2, Q("1.067 in")),
    Sketcher.Constraint("DistanceX", 1, 2, 3, 2, Q("0.195 in")),
    Sketcher.Constraint("DistanceY", 6, 2, 3, 2, Q("1.8511998 in")),
    Sketcher.Constraint("DistanceX", 2, 2, 6, 2, 0.0663),
    Sketcher.Constraint("DistanceY", 7, 2, 0, 2, 51.3099),
    Sketcher.Constraint("DistanceX", 0, 2, -1, 1, 51.64455),
    Sketcher.Constraint("DistanceY", -1, 1, 0, 2, 26.867908),
    Sketcher.Constraint("DistanceX", -1, 1, 12, 2, 49.401942),
])
pocket3 = body.newObject("PartDesign::Pocket", "Pocket002")
pocket3.Profile = sketch6
pocket3.Length = Q("0.14 in")

doc.recompute()
